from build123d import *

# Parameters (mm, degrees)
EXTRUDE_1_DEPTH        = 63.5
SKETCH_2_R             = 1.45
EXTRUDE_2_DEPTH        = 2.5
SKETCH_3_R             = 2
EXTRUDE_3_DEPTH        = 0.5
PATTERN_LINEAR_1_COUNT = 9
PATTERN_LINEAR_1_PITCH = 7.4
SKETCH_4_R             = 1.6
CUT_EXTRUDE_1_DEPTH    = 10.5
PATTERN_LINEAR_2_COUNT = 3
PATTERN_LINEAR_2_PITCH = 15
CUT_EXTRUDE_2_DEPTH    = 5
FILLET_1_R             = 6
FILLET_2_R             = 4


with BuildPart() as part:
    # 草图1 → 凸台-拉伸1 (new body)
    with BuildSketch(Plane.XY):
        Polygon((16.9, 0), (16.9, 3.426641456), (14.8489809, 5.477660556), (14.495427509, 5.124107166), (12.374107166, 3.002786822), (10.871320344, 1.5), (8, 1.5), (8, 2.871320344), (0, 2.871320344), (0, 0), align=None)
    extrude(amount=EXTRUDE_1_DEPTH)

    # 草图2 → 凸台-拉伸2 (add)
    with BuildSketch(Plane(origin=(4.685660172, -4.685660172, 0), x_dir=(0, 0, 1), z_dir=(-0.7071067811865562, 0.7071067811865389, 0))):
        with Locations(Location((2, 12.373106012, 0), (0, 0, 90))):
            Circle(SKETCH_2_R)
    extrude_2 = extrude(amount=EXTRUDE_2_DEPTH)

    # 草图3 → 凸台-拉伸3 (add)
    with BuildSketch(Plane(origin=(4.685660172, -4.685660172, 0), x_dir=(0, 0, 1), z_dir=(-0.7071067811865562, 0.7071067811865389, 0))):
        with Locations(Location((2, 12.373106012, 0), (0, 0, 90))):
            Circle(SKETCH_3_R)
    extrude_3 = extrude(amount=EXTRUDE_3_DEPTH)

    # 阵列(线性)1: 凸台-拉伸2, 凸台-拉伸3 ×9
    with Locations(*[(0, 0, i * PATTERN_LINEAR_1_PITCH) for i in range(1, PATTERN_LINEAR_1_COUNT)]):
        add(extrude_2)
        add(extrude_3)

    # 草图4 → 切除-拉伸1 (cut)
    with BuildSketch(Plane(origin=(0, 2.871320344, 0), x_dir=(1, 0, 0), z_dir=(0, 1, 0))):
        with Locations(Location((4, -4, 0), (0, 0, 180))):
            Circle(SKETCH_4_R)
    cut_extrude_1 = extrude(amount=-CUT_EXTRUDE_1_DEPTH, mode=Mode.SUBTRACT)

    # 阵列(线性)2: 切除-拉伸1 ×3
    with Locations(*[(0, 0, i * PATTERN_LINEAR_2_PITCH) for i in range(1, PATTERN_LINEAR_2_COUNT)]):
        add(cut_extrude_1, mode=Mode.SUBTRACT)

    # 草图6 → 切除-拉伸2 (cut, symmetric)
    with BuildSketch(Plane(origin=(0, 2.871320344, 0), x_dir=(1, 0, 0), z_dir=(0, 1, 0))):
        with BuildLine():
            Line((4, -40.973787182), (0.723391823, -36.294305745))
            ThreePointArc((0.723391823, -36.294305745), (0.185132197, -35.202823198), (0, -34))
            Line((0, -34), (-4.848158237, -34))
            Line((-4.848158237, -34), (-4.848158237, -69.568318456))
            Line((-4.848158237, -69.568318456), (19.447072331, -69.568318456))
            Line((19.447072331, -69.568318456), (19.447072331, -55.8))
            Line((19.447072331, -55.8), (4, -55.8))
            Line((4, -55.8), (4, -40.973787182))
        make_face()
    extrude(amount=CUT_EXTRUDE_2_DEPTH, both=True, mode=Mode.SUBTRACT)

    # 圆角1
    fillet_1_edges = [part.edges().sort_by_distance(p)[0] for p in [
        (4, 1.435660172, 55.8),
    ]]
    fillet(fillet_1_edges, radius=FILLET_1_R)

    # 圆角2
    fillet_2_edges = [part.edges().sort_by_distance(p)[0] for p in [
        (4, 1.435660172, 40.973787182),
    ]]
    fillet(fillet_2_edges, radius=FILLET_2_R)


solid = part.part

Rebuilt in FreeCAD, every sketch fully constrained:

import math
import FreeCAD as App
import Part
import Sketcher
from FreeCAD import Vector
Q = App.Units.Quantity


def edges_at(feature, points):
    """Names of the edges that pass closest to the given points."""
    edges = feature.Shape.Edges
    near = lambda p: min(range(len(edges)), key=lambda i: edges[i].distToShape(Part.Vertex(*p))[0])
    return sorted({f"Edge{near(p) + 1}" for p in points})


def add_polygon(sketch, points):
    """Adds a closed chain of lines whose ends are joined by coincident constraints."""
    first, n = sketch.GeometryCount, len(points)
    for a, b in zip(points, points[1:] + points[:1]):
        sketch.addGeometry(Part.LineSegment(App.Vector(*a, 0), App.Vector(*b, 0)), False)
    for i in range(n):
        sketch.addConstraint(Sketcher.Constraint("Coincident", first + i, 2, first + (i + 1) % n, 1))

doc = App.newDocument("Part")
body = doc.addObject("PartDesign::Body", "Body")

sketch1 = doc.addObject("Sketcher::SketchObject", "Sketch")
body.addObject(sketch1)
sketch1.AttachmentSupport = (doc.XY_Plane, [""])
sketch1.MapMode = "FlatFace"
add_polygon(sketch1, [(16.9, 0), (16.9, 3.43), (14.85, 5.48), (14.5, 5.12), (12.37, 3), (10.87, 1.5), (8, 1.5), (8, 2.87), (0, 2.87), (0, 0)])
sketch1.addConstraint([
    Sketcher.Constraint("Vertical", 0),
    Sketcher.Constraint("Horizontal", 5),
    Sketcher.Constraint("Vertical", 6),
    Sketcher.Constraint("Horizontal", 7),
    Sketcher.Constraint("Vertical", 8),
    Sketcher.Constraint("Horizontal", 9),
    Sketcher.Constraint("Coincident", 8, 2, -1, 1),
    Sketcher.Constraint("Perpendicular", 1, 2),
    Sketcher.Constraint("Parallel", 2, 3),
    Sketcher.Constraint("Parallel", 3, 4),
    Sketcher.Constraint("Equal", 5, 8),
    Sketcher.Constraint("DistanceX", 7, 2, 7, 1, 8.0),
    Sketcher.Constraint("Angle", 1, Q("135 deg")),
    Sketcher.Constraint("Distance", 3, 3.0),
    Sketcher.Constraint("DistanceX", 9, 1, 9, 2, 16.9),
    Sketcher.Constraint("Distance", 2, 0.5),
    Sketcher.Constraint("DistanceY", -1, 1, 4, 2, 1.5),
    Sketcher.Constraint("DistanceX", 5, 2, 5, 1, 2.87132),
    Sketcher.Constraint("DistanceY", 0, 1, 0, 2, 3.426641),
])
pad1 = doc.addObject("PartDesign::Pad", "Pad")
body.addObject(pad1)
pad1.Profile = sketch1
pad1.Length = 63.5

sketch2 = doc.addObject("Sketcher::SketchObject", "Sketch001")
body.addObject(sketch2)
sketch2.Placement = App.Placement(Vector(4.68566, -4.68566, 0), App.Rotation(Vector(0, 0, 1), Vector(0.707106781, 0.707106781, 0), Vector(-0.707106781, 0.707106781, 0), "ZXY"))
sketch2.addGeometry(Part.Circle(Vector(2, 12.4, 0), Vector(0, 0, 1), 1.4), False)
sketch2.addConstraint([
    Sketcher.Constraint("Diameter", 0, 2.9),
    Sketcher.Constraint("DistanceX", -1, 1, 0, 3, 2.0),
    Sketcher.Constraint("DistanceY", -1, 1, 0, 3, 12.373106),
])
pad2 = doc.addObject("PartDesign::Pad", "Pad001")
body.addObject(pad2)
pad2.Profile = sketch2
pad2.Length = 2.5

sketch3 = doc.addObject("Sketcher::SketchObject", "Sketch002")
body.addObject(sketch3)
sketch3.Placement = App.Placement(Vector(4.68566, -4.68566, 0), App.Rotation(Vector(0, 0, 1), Vector(0.707106781, 0.707106781, 0), Vector(-0.707106781, 0.707106781, 0), "ZXY"))
sketch3.addGeometry(Part.Circle(Vector(2, 12.4, 0), Vector(0, 0, 1), 2), False)
sketch3.addConstraint([
    Sketcher.Constraint("Diameter", 0, 4.0),
    Sketcher.Constraint("DistanceX", -1, 1, 0, 3, 2.0),
    Sketcher.Constraint("DistanceY", -1, 1, 0, 3, 12.373106),
])
pad3 = doc.addObject("PartDesign::Pad", "Pad002")
body.addObject(pad3)
pad3.Profile = sketch3
pad3.Length = 0.5
doc.recompute()

linearpattern = doc.addObject("PartDesign::LinearPattern", "LinearPattern")
body.addObject(linearpattern)
linearpattern.Originals = [pad2, pad3]
linearpattern.Direction = (doc.Z_Axis, [""])
linearpattern.Mode = "offset"
linearpattern.Offset = 7.4
linearpattern.Occurrences = 9
body.Tip = linearpattern

sketch4 = doc.addObject("Sketcher::SketchObject", "Sketch003")
body.addObject(sketch4)
sketch4.AttachmentSupport = (doc.XZ_Plane, [""])
sketch4.MapMode = "FlatFace"
sketch4.AttachmentOffset = App.Placement(Vector(0, 0, -2.87132), App.Rotation())
sketch4.addGeometry(Part.Circle(Vector(4, 4, 0), Vector(0, 0, 1), 1.6), False)
sketch4.addConstraint([
    Sketcher.Constraint("Diameter", 0, 3.2),
    Sketcher.Constraint("DistanceX", -1, 1, 0, 3, 4.0),
    Sketcher.Constraint("DistanceY", -1, 1, 0, 3, 4.0),
])
pocket1 = doc.addObject("PartDesign::Pocket", "Pocket")
body.addObject(pocket1)
pocket1.Profile = sketch4
pocket1.Length = 10.5
pocket1.Reversed = True
doc.recompute()

linearpattern2 = doc.addObject("PartDesign::LinearPattern", "LinearPattern001")
body.addObject(linearpattern2)
linearpattern2.Originals = [pocket1]
linearpattern2.Direction = (doc.Z_Axis, [""])
linearpattern2.Mode = "offset"
linearpattern2.Offset = 15
linearpattern2.Occurrences = 3
body.Tip = linearpattern2

sketch5 = doc.addObject("Sketcher::SketchObject", "Sketch004")
body.addObject(sketch5)
sketch5.AttachmentSupport = (doc.XZ_Plane, [""])
sketch5.MapMode = "FlatFace"
sketch5.AttachmentOffset = App.Placement(Vector(0, 0, -2.87132), App.Rotation())
sketch5.addGeometry([
    Part.LineSegment(Vector(4, 41, 0), Vector(0.7, 36.3, 0)),
    Part.ArcOfCircle(Part.Circle(Vector(4, 34, 0), Vector(0, 0, 1), 4), math.radians(145), math.radians(180)),
    Part.LineSegment(Vector(0, 34, 0), Vector(-4.8, 34, 0)),
    Part.LineSegment(Vector(-4.8, 34, 0), Vector(-4.8, 69.6, 0)),
    Part.LineSegment(Vector(-4.8, 69.6, 0), Vector(19.4, 69.6, 0)),
    Part.LineSegment(Vector(19.4, 69.6, 0), Vector(19.4, 55.8, 0)),
    Part.LineSegment(Vector(19.4, 55.8, 0), Vector(4, 55.8, 0)),
    Part.LineSegment(Vector(4, 55.8, 0), Vector(4, 41, 0)),
], False)
sketch5.addConstraint([
    Sketcher.Constraint("Tangent", 0, 2, 1, 1),
    Sketcher.Constraint("Coincident", 1, 2, 2, 1),
    Sketcher.Constraint("Coincident", 2, 2, 3, 1),
    Sketcher.Constraint("Coincident", 3, 2, 4, 1),
    Sketcher.Constraint("Coincident", 4, 2, 5, 1),
    Sketcher.Constraint("Coincident", 5, 2, 6, 1),
    Sketcher.Constraint("Coincident", 6, 2, 7, 1),
    Sketcher.Constraint("Coincident", 7, 2, 0, 1),
    Sketcher.Constraint("Horizontal", 2),
    Sketcher.Constraint("Vertical", 3),
    Sketcher.Constraint("Horizontal", 4),
    Sketcher.Constraint("Vertical", 5),
    Sketcher.Constraint("Horizontal", 6),
    Sketcher.Constraint("Vertical", 7),
    Sketcher.Constraint("PointOnObject", 1, 2, -2),
    Sketcher.Constraint("Vertical", 1, 3, 6, 2),
    Sketcher.Constraint("Radius", 1, 4.0),
    Sketcher.Constraint("Angle", 0, Q("-125 deg")),
    Sketcher.Constraint("DistanceY", -1, 1, 1, 3, 34.0),
    Sketcher.Constraint("DistanceY", -1, 1, 1, 2, 34.0),
    Sketcher.Constraint("DistanceY", -1, 1, 5, 2, 55.8),
    Sketcher.Constraint("DistanceX", 2, 2, 2, 1, 4.848158),
    Sketcher.Constraint("DistanceX", 4, 1, 4, 2, 24.295231),
    Sketcher.Constraint("DistanceY", 3, 1, 3, 2, 35.568318),
])
pocket2 = doc.addObject("PartDesign::Pocket", "Pocket001")
body.addObject(pocket2)
pocket2.Profile = sketch5
pocket2.Length = 10
pocket2.Midplane = True
doc.recompute()

fillet = doc.addObject("PartDesign::Fillet", "Fillet")
body.addObject(fillet)
fillet.Base = (pocket2, edges_at(pocket2, [(4, 1.436, 55.8)]))
fillet.Radius = 6
doc.recompute()

fillet2 = doc.addObject("PartDesign::Fillet", "Fillet001")
body.addObject(fillet2)
fillet2.Base = (fillet, edges_at(fillet, [(4, 1.436, 40.974)]))
fillet2.Radius = 4

doc.recompute()
